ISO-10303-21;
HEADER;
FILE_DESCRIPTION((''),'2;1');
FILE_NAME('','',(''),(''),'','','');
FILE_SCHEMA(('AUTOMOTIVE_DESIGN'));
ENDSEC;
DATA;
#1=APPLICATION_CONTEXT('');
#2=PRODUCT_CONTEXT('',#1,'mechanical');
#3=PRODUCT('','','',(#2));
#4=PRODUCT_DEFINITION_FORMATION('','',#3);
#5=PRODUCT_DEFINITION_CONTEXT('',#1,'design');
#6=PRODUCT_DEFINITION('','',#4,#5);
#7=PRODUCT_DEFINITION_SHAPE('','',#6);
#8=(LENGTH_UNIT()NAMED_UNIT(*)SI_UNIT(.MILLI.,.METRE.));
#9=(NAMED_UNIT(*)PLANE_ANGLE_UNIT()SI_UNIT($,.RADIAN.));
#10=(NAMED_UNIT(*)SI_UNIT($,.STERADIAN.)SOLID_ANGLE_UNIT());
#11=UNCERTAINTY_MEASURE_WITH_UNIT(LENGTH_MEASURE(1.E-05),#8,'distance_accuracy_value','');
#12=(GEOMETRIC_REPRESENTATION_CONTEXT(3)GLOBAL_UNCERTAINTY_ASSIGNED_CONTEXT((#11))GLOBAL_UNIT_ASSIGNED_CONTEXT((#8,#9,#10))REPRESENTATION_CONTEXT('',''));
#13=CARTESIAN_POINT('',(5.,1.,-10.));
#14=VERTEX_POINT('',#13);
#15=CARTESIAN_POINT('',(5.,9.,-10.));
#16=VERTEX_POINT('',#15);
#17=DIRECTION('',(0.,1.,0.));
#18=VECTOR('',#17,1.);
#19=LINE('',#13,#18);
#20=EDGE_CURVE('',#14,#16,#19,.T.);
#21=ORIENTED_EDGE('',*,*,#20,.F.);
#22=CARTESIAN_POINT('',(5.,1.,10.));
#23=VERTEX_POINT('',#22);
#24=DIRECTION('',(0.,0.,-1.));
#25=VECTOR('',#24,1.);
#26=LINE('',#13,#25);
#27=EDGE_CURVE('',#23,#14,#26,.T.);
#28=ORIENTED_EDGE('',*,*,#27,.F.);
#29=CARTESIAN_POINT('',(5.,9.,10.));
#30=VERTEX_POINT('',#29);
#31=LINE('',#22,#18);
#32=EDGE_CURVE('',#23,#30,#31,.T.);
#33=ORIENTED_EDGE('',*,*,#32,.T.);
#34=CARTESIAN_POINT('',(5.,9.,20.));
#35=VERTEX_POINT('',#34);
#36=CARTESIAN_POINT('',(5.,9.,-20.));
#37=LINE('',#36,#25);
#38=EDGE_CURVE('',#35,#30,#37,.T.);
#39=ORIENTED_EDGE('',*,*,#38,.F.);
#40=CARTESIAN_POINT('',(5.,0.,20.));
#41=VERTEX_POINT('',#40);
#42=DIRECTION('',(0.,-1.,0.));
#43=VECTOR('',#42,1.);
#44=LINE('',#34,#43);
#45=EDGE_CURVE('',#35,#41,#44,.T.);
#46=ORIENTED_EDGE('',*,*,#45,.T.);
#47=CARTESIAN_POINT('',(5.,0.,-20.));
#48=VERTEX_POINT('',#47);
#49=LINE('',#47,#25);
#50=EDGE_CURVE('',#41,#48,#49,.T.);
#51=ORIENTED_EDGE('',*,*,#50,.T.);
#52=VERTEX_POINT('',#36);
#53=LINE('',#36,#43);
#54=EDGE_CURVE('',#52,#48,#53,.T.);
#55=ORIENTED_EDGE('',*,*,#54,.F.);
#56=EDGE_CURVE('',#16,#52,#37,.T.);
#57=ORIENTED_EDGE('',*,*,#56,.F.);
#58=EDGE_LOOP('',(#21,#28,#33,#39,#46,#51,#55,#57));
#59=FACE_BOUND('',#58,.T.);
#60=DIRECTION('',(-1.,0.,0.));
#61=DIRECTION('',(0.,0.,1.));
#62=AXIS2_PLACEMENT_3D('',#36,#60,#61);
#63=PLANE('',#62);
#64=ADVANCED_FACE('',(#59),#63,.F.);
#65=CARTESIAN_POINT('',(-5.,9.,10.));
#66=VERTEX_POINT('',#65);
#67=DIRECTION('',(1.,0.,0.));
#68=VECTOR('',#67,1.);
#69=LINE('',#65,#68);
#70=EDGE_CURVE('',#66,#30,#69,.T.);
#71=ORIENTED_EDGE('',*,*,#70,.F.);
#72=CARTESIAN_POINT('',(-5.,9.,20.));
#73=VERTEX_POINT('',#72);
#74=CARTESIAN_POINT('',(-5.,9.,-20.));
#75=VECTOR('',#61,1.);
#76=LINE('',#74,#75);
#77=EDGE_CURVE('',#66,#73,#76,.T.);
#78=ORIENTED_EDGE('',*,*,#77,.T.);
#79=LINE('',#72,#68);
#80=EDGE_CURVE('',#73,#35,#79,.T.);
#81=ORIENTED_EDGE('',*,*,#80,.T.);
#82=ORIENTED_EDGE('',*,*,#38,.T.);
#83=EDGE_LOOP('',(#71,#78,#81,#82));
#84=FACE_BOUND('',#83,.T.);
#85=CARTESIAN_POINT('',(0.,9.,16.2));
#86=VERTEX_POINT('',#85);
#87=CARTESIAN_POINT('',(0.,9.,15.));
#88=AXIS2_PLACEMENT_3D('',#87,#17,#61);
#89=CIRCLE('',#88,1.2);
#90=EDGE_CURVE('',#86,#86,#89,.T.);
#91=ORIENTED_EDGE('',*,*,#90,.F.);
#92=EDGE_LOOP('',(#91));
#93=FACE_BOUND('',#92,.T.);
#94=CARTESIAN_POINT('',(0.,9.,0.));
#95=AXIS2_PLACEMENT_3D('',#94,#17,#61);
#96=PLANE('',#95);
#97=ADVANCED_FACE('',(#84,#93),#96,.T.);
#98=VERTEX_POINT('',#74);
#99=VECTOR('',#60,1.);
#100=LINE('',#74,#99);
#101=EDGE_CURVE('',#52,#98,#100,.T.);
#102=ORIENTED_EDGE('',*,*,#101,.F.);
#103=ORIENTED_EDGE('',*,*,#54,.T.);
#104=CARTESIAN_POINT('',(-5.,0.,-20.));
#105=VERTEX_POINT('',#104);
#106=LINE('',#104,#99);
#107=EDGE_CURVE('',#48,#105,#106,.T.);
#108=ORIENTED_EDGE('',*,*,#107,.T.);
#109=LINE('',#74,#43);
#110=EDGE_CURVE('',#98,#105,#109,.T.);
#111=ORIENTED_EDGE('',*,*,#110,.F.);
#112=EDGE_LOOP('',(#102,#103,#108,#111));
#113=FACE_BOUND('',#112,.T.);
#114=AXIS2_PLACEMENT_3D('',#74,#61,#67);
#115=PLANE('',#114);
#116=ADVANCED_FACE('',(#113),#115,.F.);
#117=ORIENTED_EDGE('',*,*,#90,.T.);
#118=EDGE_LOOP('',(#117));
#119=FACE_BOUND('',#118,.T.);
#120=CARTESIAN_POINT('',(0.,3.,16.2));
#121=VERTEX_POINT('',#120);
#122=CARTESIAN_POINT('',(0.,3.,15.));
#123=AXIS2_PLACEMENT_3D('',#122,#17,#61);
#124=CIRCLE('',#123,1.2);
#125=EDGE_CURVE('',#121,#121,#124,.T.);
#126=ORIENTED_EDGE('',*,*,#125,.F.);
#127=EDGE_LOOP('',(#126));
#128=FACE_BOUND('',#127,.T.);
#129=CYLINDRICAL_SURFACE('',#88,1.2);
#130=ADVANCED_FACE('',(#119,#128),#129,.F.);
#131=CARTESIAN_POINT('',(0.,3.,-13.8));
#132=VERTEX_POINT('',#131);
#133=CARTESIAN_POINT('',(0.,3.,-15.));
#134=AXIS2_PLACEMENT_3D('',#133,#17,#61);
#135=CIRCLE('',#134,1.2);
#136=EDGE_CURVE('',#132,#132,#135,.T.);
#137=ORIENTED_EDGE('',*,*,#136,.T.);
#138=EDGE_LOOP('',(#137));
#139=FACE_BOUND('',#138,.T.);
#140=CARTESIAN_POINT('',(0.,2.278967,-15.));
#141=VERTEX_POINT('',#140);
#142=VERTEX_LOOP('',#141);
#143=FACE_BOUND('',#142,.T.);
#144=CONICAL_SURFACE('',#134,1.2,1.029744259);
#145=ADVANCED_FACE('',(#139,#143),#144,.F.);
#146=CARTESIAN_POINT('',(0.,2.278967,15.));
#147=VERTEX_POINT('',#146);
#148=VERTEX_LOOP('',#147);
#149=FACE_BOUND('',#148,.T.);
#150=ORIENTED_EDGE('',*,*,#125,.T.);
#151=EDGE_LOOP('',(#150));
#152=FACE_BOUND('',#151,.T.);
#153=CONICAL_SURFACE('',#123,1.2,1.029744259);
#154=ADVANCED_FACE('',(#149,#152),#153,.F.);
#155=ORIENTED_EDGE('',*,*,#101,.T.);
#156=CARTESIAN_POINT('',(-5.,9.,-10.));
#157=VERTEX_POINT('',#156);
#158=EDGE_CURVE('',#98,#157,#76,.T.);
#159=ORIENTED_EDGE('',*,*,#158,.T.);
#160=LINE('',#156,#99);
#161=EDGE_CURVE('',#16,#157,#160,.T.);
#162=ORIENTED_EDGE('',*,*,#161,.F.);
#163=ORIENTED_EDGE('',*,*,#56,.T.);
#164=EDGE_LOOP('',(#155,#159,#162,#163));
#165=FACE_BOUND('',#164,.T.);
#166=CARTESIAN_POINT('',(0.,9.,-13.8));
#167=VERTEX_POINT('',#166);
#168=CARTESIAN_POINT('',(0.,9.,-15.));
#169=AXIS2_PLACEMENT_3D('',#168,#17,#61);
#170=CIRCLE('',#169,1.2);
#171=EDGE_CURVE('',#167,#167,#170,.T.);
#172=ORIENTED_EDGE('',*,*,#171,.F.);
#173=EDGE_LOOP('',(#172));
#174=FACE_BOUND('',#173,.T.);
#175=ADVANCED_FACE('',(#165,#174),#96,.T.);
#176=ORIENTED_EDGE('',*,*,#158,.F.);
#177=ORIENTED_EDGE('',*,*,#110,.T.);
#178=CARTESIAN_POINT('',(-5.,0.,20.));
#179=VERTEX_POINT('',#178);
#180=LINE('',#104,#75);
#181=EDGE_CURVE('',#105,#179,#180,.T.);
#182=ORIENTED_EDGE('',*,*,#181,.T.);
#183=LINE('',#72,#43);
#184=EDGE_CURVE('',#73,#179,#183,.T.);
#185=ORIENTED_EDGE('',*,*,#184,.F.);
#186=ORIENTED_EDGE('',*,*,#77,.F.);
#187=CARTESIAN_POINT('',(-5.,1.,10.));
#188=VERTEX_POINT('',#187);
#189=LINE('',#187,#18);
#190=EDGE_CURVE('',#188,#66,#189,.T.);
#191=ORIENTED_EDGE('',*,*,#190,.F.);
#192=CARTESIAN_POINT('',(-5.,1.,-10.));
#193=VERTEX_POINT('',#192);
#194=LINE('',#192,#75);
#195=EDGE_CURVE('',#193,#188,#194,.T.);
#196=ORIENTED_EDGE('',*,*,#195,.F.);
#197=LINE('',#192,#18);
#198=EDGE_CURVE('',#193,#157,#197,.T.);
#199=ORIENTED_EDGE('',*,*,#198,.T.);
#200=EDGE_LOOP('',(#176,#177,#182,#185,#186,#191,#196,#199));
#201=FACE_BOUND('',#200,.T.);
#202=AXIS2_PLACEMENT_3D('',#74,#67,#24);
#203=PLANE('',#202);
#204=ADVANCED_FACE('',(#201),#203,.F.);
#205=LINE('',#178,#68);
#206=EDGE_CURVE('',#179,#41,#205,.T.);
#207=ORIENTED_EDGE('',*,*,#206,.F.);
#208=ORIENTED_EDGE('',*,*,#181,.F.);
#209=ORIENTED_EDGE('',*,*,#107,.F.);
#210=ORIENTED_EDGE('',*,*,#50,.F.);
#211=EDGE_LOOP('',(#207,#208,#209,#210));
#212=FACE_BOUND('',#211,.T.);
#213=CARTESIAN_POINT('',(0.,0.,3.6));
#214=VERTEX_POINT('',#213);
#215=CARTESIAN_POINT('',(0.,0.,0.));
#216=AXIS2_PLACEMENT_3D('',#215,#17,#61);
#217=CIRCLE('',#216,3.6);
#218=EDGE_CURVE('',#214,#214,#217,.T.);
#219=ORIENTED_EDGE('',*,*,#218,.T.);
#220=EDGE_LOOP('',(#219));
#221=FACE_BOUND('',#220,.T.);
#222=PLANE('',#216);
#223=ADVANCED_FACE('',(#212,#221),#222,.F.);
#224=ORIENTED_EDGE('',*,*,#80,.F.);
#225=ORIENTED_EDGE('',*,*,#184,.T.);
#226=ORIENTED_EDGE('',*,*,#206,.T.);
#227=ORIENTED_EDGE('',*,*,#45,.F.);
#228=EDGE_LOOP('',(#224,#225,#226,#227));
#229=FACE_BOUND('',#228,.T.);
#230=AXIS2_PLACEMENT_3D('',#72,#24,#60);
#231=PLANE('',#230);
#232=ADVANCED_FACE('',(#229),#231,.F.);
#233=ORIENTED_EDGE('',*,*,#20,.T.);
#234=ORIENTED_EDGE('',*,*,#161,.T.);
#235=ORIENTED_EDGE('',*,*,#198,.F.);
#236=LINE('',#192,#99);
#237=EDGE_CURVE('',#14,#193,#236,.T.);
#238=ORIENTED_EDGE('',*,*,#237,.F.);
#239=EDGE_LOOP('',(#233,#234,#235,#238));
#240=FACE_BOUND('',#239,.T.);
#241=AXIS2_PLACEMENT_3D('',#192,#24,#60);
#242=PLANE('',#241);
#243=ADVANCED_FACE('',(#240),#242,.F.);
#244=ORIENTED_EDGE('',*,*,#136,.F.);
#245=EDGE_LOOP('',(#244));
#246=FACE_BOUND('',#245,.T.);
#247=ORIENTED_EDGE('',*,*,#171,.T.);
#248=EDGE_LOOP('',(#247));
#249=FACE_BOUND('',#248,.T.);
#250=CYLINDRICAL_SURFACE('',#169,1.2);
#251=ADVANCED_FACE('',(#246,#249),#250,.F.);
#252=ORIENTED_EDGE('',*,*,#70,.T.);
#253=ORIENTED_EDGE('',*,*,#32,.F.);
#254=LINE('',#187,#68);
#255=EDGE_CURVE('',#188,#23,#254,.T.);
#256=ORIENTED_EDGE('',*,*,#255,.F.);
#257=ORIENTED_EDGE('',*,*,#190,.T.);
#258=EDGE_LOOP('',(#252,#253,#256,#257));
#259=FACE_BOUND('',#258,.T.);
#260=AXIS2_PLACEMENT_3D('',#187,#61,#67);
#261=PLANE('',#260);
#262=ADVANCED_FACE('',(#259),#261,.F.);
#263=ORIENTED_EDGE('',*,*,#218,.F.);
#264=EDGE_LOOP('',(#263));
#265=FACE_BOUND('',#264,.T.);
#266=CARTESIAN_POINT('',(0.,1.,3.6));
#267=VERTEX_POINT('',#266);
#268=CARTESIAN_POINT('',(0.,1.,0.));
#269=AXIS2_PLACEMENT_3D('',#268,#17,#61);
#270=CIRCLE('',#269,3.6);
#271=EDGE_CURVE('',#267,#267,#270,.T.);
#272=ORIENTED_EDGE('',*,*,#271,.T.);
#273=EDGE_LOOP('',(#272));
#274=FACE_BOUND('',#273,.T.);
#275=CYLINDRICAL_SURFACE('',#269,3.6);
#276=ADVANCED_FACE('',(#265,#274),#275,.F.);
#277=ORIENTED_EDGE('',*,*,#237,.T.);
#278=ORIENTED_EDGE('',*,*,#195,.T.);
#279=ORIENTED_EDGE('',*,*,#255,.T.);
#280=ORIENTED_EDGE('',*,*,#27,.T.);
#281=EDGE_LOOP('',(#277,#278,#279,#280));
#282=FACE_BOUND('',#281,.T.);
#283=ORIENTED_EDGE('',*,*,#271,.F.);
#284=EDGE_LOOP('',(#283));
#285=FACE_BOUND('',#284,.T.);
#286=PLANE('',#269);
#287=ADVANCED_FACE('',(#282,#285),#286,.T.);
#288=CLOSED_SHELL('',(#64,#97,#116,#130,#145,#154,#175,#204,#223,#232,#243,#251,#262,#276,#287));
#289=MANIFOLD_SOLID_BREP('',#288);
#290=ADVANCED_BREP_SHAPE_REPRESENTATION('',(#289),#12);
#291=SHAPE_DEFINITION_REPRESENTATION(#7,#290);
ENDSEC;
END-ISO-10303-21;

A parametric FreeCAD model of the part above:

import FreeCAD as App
import Part
import Sketcher

doc = App.newDocument("Part")
body = doc.addObject("PartDesign::Body", "Body")

# Sketch on XZ plane
sketch1 = doc.addObject("Sketcher::SketchObject", "Sketch")
body.addObject(sketch1)
sketch1.AttachmentSupport = (doc.XZ_Plane, [""])
sketch1.MapMode = "FlatFace"
sketch1.addGeometry([
    Part.LineSegment(App.Vector(-5, -20, 0), App.Vector(-5, 20, 0)),
    Part.LineSegment(App.Vector(-5, 20, 0), App.Vector(5, 20, 0)),
    Part.LineSegment(App.Vector(5, 20, 0), App.Vector(5, -20, 0)),
    Part.LineSegment(App.Vector(5, -20, 0), App.Vector(-5, -20, 0)),
], False)
sketch1.addConstraint([
    Sketcher.Constraint("Coincident", 0, 2, 1, 1),
    Sketcher.Constraint("Coincident", 1, 2, 2, 1),
    Sketcher.Constraint("Coincident", 2, 2, 3, 1),
    Sketcher.Constraint("Coincident", 3, 2, 0, 1),
    Sketcher.Constraint("Vertical", 0),
    Sketcher.Constraint("Horizontal", 1),
    Sketcher.Constraint("Vertical", 2),
    Sketcher.Constraint("Horizontal", 3),
    Sketcher.Constraint("Symmetric", 0, 2, 2, 2, -1, 1),
    Sketcher.Constraint("DistanceX", 1, 1, 1, 2, 10.0),
    Sketcher.Constraint("DistanceY", 0, 1, 0, 2, 40.0),
])
pad1 = doc.addObject("PartDesign::Pad", "Pad")
body.addObject(pad1)
pad1.Profile = sketch1
pad1.Length = 9
pad1.Reversed = True

# Sketch on XZ plane
sketch2 = doc.addObject("Sketcher::SketchObject", "Sketch001")
body.addObject(sketch2)
sketch2.AttachmentSupport = (doc.XZ_Plane, [""])
sketch2.MapMode = "FlatFace"
sketch2.AttachmentOffset = App.Placement(App.Vector(0, 0, -9), App.Rotation())
sketch2.addGeometry([
    Part.LineSegment(App.Vector(-5, -10, 0), App.Vector(-5, 10, 0)),
    Part.LineSegment(App.Vector(-5, 10, 0), App.Vector(5, 10, 0)),
    Part.LineSegment(App.Vector(5, 10, 0), App.Vector(5, -10, 0)),
    Part.LineSegment(App.Vector(5, -10, 0), App.Vector(-5, -10, 0)),
], False)
sketch2.addConstraint([
    Sketcher.Constraint("Coincident", 0, 2, 1, 1),
    Sketcher.Constraint("Coincident", 1, 2, 2, 1),
    Sketcher.Constraint("Coincident", 2, 2, 3, 1),
    Sketcher.Constraint("Coincident", 3, 2, 0, 1),
    Sketcher.Constraint("Vertical", 0),
    Sketcher.Constraint("Horizontal", 1),
    Sketcher.Constraint("Vertical", 2),
    Sketcher.Constraint("Horizontal", 3),
    Sketcher.Constraint("Symmetric", 0, 2, 2, 2, -1, 1),
    Sketcher.Constraint("DistanceX", 1, 1, 1, 2, 10.0),
    Sketcher.Constraint("DistanceY", 0, 1, 0, 2, 20.0),
])
pocket1 = doc.addObject("PartDesign::Pocket", "Pocket")
body.addObject(pocket1)
pocket1.Profile = sketch2
pocket1.Length = 8
pocket1.Reversed = True

# Sketch on XZ plane
sketch3 = doc.addObject("Sketcher::SketchObject", "Sketch002")
body.addObject(sketch3)
sketch3.AttachmentSupport = (doc.XZ_Plane, [""])
sketch3.MapMode = "FlatFace"
sketch3.AttachmentOffset = App.Placement(App.Vector(0, 0, -9), App.Rotation())
sketch3.addGeometry([
    Part.Circle(App.Vector(0, 15, 0), App.Vector(0, 0, 1), 1.2),
    Part.Circle(App.Vector(0, -15, 0), App.Vector(0, 0, 1), 1.2),
], False)
sketch3.addConstraint([
    Sketcher.Constraint("Equal", 0, 1),
    Sketcher.Constraint("Symmetric", 0, 3, 1, 3, -1, 1),
    Sketcher.Constraint("PointOnObject", 0, 3, -2),
    Sketcher.Constraint("Diameter", 0, 2.4),
    Sketcher.Constraint("DistanceY", -1, 1, 0, 3, 15.0),
])
doc.recompute()
hole = doc.addObject("PartDesign::Hole", "Hole")
body.addObject(hole)
hole.Profile = sketch3
hole.ThreadType = "None"
hole.Diameter = 2.4
hole.DepthType = "Dimension"
hole.Depth = 6
hole.DrillPoint = "Angled"
hole.DrillPointAngle = 118
hole.Reversed = True

# Sketch on XZ plane
sketch4 = doc.addObject("Sketcher::SketchObject", "Sketch003")
body.addObject(sketch4)
sketch4.AttachmentSupport = (doc.XZ_Plane, [""])
sketch4.MapMode = "FlatFace"
sketch4.AttachmentOffset = App.Placement(App.Vector(0, 0, -1), App.Rotation())
sketch4.addGeometry(Part.Circle(App.Vector(0, 0, 0), App.Vector(0, 0, 1), 3.6), False)
sketch4.addConstraint([
    Sketcher.Constraint("Coincident", 0, 3, -1, 1),
    Sketcher.Constraint("Diameter", 0, 7.2),
])
doc.recompute()
hole2 = doc.addObject("PartDesign::Hole", "Hole001")
body.addObject(hole2)
hole2.Profile = sketch4
hole2.ThreadType = "None"
hole2.Diameter = 7.2
hole2.DepthType = "ThroughAll"
hole2.Reversed = True

doc.recompute()
